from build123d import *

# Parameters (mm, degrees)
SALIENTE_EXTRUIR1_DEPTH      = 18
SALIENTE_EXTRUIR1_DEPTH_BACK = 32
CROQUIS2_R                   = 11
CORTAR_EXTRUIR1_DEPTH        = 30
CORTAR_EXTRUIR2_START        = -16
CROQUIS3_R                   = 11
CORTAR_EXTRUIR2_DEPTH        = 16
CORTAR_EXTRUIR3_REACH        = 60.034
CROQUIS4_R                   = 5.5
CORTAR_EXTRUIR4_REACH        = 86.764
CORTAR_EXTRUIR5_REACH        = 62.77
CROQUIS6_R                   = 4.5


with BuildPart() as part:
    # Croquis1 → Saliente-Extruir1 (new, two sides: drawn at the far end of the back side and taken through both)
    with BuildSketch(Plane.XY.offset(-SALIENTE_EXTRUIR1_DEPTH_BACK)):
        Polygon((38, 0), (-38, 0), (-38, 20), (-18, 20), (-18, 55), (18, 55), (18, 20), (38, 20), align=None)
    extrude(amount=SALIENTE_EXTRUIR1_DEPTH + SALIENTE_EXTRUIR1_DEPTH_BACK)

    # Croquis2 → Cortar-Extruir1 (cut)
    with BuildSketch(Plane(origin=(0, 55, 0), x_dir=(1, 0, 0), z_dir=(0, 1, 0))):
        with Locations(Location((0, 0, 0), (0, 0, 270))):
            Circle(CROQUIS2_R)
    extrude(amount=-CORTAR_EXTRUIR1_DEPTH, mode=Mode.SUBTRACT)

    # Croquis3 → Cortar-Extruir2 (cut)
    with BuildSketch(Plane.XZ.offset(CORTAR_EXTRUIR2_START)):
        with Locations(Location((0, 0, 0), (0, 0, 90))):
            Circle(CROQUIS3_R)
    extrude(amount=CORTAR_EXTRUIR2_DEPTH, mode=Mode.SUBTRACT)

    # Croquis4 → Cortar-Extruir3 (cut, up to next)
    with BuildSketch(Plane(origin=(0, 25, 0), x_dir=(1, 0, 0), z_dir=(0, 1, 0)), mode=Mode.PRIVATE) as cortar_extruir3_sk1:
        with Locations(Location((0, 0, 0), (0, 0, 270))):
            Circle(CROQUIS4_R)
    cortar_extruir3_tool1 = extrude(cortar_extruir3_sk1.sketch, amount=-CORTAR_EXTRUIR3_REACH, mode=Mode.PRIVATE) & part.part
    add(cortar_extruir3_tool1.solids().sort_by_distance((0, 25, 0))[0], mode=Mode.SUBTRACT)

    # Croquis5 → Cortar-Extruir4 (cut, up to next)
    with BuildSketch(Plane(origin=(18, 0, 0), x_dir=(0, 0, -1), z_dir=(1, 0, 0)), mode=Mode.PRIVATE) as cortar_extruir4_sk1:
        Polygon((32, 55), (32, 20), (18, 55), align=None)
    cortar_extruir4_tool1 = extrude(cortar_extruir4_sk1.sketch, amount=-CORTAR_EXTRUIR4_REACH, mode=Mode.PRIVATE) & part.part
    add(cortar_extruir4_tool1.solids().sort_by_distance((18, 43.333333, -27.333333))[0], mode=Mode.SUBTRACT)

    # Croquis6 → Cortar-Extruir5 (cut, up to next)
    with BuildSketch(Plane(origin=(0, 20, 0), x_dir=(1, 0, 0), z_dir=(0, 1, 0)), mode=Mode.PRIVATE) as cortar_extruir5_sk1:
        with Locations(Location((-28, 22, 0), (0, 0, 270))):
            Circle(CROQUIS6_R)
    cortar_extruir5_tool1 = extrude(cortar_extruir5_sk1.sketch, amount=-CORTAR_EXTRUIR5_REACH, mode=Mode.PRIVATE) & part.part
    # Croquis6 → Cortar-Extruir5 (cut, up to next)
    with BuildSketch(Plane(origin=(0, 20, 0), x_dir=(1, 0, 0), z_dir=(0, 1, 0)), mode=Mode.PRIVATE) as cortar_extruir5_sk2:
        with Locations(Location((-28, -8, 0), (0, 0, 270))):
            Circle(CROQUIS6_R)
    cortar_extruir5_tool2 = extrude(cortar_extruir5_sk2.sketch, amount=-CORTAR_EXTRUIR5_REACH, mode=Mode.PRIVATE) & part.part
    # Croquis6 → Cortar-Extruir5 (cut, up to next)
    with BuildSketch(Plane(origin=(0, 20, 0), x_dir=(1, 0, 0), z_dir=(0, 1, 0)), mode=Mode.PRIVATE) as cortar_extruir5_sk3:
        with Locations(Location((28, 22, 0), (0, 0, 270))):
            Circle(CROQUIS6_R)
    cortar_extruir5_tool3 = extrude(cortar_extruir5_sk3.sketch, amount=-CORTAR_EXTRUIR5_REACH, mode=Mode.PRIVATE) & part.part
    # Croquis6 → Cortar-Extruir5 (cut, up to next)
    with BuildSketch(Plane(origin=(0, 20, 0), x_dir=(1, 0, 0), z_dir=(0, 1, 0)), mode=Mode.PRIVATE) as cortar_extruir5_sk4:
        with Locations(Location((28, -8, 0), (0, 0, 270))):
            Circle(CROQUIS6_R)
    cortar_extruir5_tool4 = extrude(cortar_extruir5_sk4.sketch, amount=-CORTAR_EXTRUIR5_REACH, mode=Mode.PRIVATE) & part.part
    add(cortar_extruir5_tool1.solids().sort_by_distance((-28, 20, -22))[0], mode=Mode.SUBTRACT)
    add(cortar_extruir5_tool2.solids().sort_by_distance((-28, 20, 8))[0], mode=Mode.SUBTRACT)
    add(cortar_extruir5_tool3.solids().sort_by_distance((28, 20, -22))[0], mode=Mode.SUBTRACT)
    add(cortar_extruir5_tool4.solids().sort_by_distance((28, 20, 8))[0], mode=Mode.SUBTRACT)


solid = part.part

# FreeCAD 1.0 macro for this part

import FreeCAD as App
import Part
import Sketcher
from FreeCAD import Vector


def add_polygon(sketch, points):
    """Adds a closed chain of lines whose ends are joined by coincident constraints."""
    first, n = sketch.GeometryCount, len(points)
    for a, b in zip(points, points[1:] + points[:1]):
        sketch.addGeometry(Part.LineSegment(App.Vector(*a, 0), App.Vector(*b, 0)), False)
    for i in range(n):
        sketch.addConstraint(Sketcher.Constraint("Coincident", first + i, 2, first + (i + 1) % n, 1))

doc = App.newDocument("Part")
body = doc.addObject("PartDesign::Body", "Body")

sketch1 = body.newObject("Sketcher::SketchObject", "Sketch")
sketch1.AttachmentSupport = (doc.getObject("XY_Plane"), [""])
sketch1.MapMode = "FlatFace"
add_polygon(sketch1, [(-38, 0), (38, 0), (38, 20), (18, 20), (18, 55), (-18, 55), (-18, 20), (-38, 20)])
sketch1.addConstraint([
    Sketcher.Constraint("Horizontal", 0),
    Sketcher.Constraint("Vertical", 1),
    Sketcher.Constraint("Horizontal", 2),
    Sketcher.Constraint("Vertical", 3),
    Sketcher.Constraint("Horizontal", 4),
    Sketcher.Constraint("Vertical", 5),
    Sketcher.Constraint("Horizontal", 6),
    Sketcher.Constraint("Vertical", 7),
    Sketcher.Constraint("Symmetric", 0, 2, 7, 2, -1, 1),
    Sketcher.Constraint("Symmetric", 2, 2, 5, 2, -2),
    Sketcher.Constraint("Equal", 6, 1),
    Sketcher.Constraint("DistanceX", 0, 1, 0, 2, 76.0),
    Sketcher.Constraint("DistanceX", 2, 2, 2, 1, 20.0),
    Sketcher.Constraint("DistanceY", 3, 1, 3, 2, 35.0),
])
pad1 = body.newObject("PartDesign::Pad", "Pad")
pad1.Profile = sketch1
pad1.Type = "TwoLengths"
pad1.Length = 18
pad1.Length2 = 32

sketch2 = body.newObject("Sketcher::SketchObject", "Sketch001")
sketch2.AttachmentSupport = (doc.getObject("XZ_Plane"), [""])
sketch2.MapMode = "FlatFace"
sketch2.AttachmentOffset = App.Placement(Vector(0, 0, -55), App.Rotation())
sketch2.addGeometry(Part.Circle(Vector(0, 0, 0), Vector(0, 0, 1), 11), False)
sketch2.addConstraint([
    Sketcher.Constraint("Coincident", 0, 3, -1, 1),
    Sketcher.Constraint("Diameter", 0, 22.0),
])
pocket1 = body.newObject("PartDesign::Pocket", "Pocket")
pocket1.Profile = sketch2
pocket1.Length = 30
pocket1.Reversed = True

sketch3 = body.newObject("Sketcher::SketchObject", "Sketch002")
sketch3.AttachmentSupport = (doc.getObject("XZ_Plane"), [""])
sketch3.MapMode = "FlatFace"
sketch3.AttachmentOffset = App.Placement(Vector(0, 0, -16), App.Rotation())
sketch3.addGeometry(Part.Circle(Vector(0, 0, 0), Vector(0, 0, 1), 11), False)
sketch3.addConstraint([
    Sketcher.Constraint("Coincident", 0, 3, -1, 1),
    Sketcher.Constraint("Diameter", 0, 22.0),
])
pocket2 = body.newObject("PartDesign::Pocket", "Pocket001")
pocket2.Profile = sketch3
pocket2.Length = 16
pocket2.Reversed = True

sketch4 = body.newObject("Sketcher::SketchObject", "Sketch003")
sketch4.AttachmentSupport = (doc.getObject("XZ_Plane"), [""])
sketch4.MapMode = "FlatFace"
sketch4.AttachmentOffset = App.Placement(Vector(0, 0, -25), App.Rotation())
sketch4.addGeometry(Part.Circle(Vector(0, 0, 0), Vector(0, 0, 1), 6), False)
sketch4.addConstraint([
    Sketcher.Constraint("Coincident", 0, 3, -1, 1),
    Sketcher.Constraint("Diameter", 0, 11.0),
])
pocket3 = body.newObject("PartDesign::Pocket", "Pocket002")
pocket3.Profile = sketch4
pocket3.Type = "UpToFirst"
pocket3.Reversed = True

sketch5 = body.newObject("Sketcher::SketchObject", "Sketch004")
sketch5.AttachmentSupport = (doc.getObject("YZ_Plane"), [""])
sketch5.MapMode = "FlatFace"
sketch5.AttachmentOffset = App.Placement(Vector(0, 0, 18), App.Rotation())
add_polygon(sketch5, [(20, -32), (55, -32), (55, -18)])
sketch5.addConstraint([
    Sketcher.Constraint("Horizontal", 0),
    Sketcher.Constraint("Vertical", 1),
    Sketcher.Constraint("DistanceX", 0, 1, 0, 2, 35.0),
    Sketcher.Constraint("DistanceY", 1, 1, 1, 2, 14.0),
    Sketcher.Constraint("DistanceX", -1, 1, 0, 2, 55.0),
    Sketcher.Constraint("DistanceY", 0, 2, -1, 1, 32.0),
])
pocket4 = body.newObject("PartDesign::Pocket", "Pocket003")
pocket4.Profile = sketch5
pocket4.Type = "UpToFirst"

sketch6 = body.newObject("Sketcher::SketchObject", "Sketch005")
sketch6.AttachmentSupport = (doc.getObject("XZ_Plane"), [""])
sketch6.MapMode = "FlatFace"
sketch6.AttachmentOffset = App.Placement(Vector(0, 0, -20), App.Rotation())
sketch6.addGeometry(Part.Circle(Vector(-28, -22, 0), Vector(0, 0, 1), 4.5), False)
sketch6.addConstraint([
    Sketcher.Constraint("Diameter", 0, 9.0),
    Sketcher.Constraint("DistanceX", 0, 3, -1, 1, 28.0),
    Sketcher.Constraint("DistanceY", 0, 3, -1, 1, 22.0),
])
pocket5 = body.newObject("PartDesign::Pocket", "Pocket004")
pocket5.Profile = sketch6
pocket5.Type = "UpToFirst"
pocket5.Reversed = True

sketch7 = body.newObject("Sketcher::SketchObject", "Sketch006")
sketch7.AttachmentSupport = (doc.getObject("XZ_Plane"), [""])
sketch7.MapMode = "FlatFace"
sketch7.AttachmentOffset = App.Placement(Vector(0, 0, -20), App.Rotation())
sketch7.addGeometry(Part.Circle(Vector(-28, 8, 0), Vector(0, 0, 1), 4.5), False)
sketch7.addConstraint([
    Sketcher.Constraint("Diameter", 0, 9.0),
    Sketcher.Constraint("DistanceX", 0, 3, -1, 1, 28.0),
    Sketcher.Constraint("DistanceY", -1, 1, 0, 3, 8.0),
])
pocket6 = body.newObject("PartDesign::Pocket", "Pocket005")
pocket6.Profile = sketch7
pocket6.Type = "UpToFirst"
pocket6.Reversed = True

sketch8 = body.newObject("Sketcher::SketchObject", "Sketch007")
sketch8.AttachmentSupport = (doc.getObject("XZ_Plane"), [""])
sketch8.MapMode = "FlatFace"
sketch8.AttachmentOffset = App.Placement(Vector(0, 0, -20), App.Rotation())
sketch8.addGeometry(Part.Circle(Vector(28, -22, 0), Vector(0, 0, 1), 4.5), False)
sketch8.addConstraint([
    Sketcher.Constraint("Diameter", 0, 9.0),
    Sketcher.Constraint("DistanceX", -1, 1, 0, 3, 28.0),
    Sketcher.Constraint("DistanceY", 0, 3, -1, 1, 22.0),
])
pocket7 = body.newObject("PartDesign::Pocket", "Pocket006")
pocket7.Profile = sketch8
pocket7.Type = "UpToFirst"
pocket7.Reversed = True

sketch9 = body.newObject("Sketcher::SketchObject", "Sketch008")
sketch9.AttachmentSupport = (doc.getObject("XZ_Plane"), [""])
sketch9.MapMode = "FlatFace"
sketch9.AttachmentOffset = App.Placement(Vector(0, 0, -20), App.Rotation())
sketch9.addGeometry(Part.Circle(Vector(28, 8, 0), Vector(0, 0, 1), 4.5), False)
sketch9.addConstraint([
    Sketcher.Constraint("Diameter", 0, 9.0),
    Sketcher.Constraint("DistanceX", -1, 1, 0, 3, 28.0),
    Sketcher.Constraint("DistanceY", -1, 1, 0, 3, 8.0),
])
pocket8 = body.newObject("PartDesign::Pocket", "Pocket007")
pocket8.Profile = sketch9
pocket8.Type = "UpToFirst"
pocket8.Reversed = True

doc.recompute()
